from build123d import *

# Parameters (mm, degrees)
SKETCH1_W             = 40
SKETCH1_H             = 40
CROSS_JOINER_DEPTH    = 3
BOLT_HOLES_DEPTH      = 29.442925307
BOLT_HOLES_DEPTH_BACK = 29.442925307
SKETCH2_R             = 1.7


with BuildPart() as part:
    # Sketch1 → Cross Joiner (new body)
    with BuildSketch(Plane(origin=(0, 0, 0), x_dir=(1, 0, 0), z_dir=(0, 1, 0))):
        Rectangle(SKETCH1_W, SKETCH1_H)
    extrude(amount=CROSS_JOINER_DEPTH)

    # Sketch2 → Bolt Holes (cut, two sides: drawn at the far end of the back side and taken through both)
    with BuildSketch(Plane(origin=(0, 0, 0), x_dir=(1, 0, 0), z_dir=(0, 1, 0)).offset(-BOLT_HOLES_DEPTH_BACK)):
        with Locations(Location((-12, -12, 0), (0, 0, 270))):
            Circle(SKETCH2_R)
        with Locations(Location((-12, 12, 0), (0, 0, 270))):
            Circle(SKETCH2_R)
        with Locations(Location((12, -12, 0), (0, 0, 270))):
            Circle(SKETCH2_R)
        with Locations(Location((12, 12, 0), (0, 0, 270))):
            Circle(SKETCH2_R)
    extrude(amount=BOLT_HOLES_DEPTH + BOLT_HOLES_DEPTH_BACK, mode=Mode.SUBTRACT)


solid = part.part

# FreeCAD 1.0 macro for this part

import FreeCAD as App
import Part
import Sketcher
Q = App.Units.Quantity

doc = App.newDocument("Part")
params = doc.addObject("Spreadsheet::Sheet", "Params")
for row, (alias, value) in enumerate([
    ("sketch1_width", "40 mm"),
    ("pad1_length", "3 mm"),
    ("sketch2_diameter", "3.4 mm"),
], start=1):
    params.set(f"A{row}", alias)
    params.set(f"B{row}", "=" + value)
    params.setAlias(f"B{row}", alias)

body = doc.addObject("PartDesign::Body", "Body")

sketch1 = body.newObject("Sketcher::SketchObject", "Sketch")
sketch1.AttachmentSupport = (doc.getObject("XZ_Plane"), [""])
sketch1.MapMode = "FlatFace"
sketch1.addGeometry(Part.LineSegment(App.Vector(-20, -20, 0), App.Vector(-20, 20, 0)), False)
sketch1.addGeometry(Part.LineSegment(App.Vector(-20, 20, 0), App.Vector(20, 20, 0)), False)
sketch1.addGeometry(Part.LineSegment(App.Vector(20, 20, 0), App.Vector(20, -20, 0)), False)
sketch1.addGeometry(Part.LineSegment(App.Vector(20, -20, 0), App.Vector(-20, -20, 0)), False)
sketch1.addConstraint(Sketcher.Constraint("Coincident", 0, 2, 1, 1))
sketch1.addConstraint(Sketcher.Constraint("Coincident", 1, 2, 2, 1))
sketch1.addConstraint(Sketcher.Constraint("Coincident", 2, 2, 3, 1))
sketch1.addConstraint(Sketcher.Constraint("Coincident", 3, 2, 0, 1))
sketch1.addConstraint(Sketcher.Constraint("Vertical", 0))
sketch1.addConstraint(Sketcher.Constraint("Horizontal", 1))
sketch1.addConstraint(Sketcher.Constraint("Vertical", 2))
sketch1.addConstraint(Sketcher.Constraint("Horizontal", 3))
sketch1.addConstraint(Sketcher.Constraint("Symmetric", 0, 2, 2, 2, -1, 1))
sketch1.addConstraint(Sketcher.Constraint("Equal", 3, 0))
sketch1.addConstraint(Sketcher.Constraint("DistanceX", 1, 1, 1, 2, Q("40 mm")))
sketch1.setExpression("Constraints[10]", "Params.sketch1_width")
pad1 = body.newObject("PartDesign::Pad", "Pad")
pad1.Profile = sketch1
pad1.setExpression("Length", "Params.pad1_length")
pad1.Reversed = True

sketch2 = body.newObject("Sketcher::SketchObject", "Sketch001")
sketch2.AttachmentSupport = (doc.getObject("XZ_Plane"), [""])
sketch2.MapMode = "FlatFace"
sketch2.addGeometry(Part.Circle(App.Vector(-12, 12, 0), App.Vector(0, 0, 1), 1.7), False)
sketch2.addGeometry(Part.Circle(App.Vector(-12, -12, 0), App.Vector(0, 0, 1), 1.7), False)
sketch2.addGeometry(Part.Circle(App.Vector(12, 12, 0), App.Vector(0, 0, 1), 1.7), False)
sketch2.addGeometry(Part.Circle(App.Vector(12, -12, 0), App.Vector(0, 0, 1), 1.7), False)
sketch2.addConstraint(Sketcher.Constraint("Equal", 0, 1))
sketch2.addConstraint(Sketcher.Constraint("Equal", 1, 2))
sketch2.addConstraint(Sketcher.Constraint("Equal", 2, 3))
sketch2.addConstraint(Sketcher.Constraint("Symmetric", 1, 3, 2, 3, -1, 1))
sketch2.addConstraint(Sketcher.Constraint("Symmetric", 0, 3, 3, 3, -1, 1))
sketch2.addConstraint(Sketcher.Constraint("Symmetric", 0, 3, 2, 3, -2))
sketch2.addConstraint(Sketcher.Constraint("Diameter", 0, Q("3.4 mm")))
sketch2.addConstraint(Sketcher.Constraint("DistanceX", 0, 3, -1, 1, Q("12 mm")))
sketch2.addConstraint(Sketcher.Constraint("DistanceY", -1, 1, 0, 3, Q("12 mm")))
sketch2.setExpression("Constraints[6]", "Params.sketch2_diameter")
pocket1 = body.newObject("PartDesign::Pocket", "Pocket")
pocket1.Profile = sketch2
pocket1.Type = "ThroughAll"
pocket1.Midplane = True

doc.recompute()
